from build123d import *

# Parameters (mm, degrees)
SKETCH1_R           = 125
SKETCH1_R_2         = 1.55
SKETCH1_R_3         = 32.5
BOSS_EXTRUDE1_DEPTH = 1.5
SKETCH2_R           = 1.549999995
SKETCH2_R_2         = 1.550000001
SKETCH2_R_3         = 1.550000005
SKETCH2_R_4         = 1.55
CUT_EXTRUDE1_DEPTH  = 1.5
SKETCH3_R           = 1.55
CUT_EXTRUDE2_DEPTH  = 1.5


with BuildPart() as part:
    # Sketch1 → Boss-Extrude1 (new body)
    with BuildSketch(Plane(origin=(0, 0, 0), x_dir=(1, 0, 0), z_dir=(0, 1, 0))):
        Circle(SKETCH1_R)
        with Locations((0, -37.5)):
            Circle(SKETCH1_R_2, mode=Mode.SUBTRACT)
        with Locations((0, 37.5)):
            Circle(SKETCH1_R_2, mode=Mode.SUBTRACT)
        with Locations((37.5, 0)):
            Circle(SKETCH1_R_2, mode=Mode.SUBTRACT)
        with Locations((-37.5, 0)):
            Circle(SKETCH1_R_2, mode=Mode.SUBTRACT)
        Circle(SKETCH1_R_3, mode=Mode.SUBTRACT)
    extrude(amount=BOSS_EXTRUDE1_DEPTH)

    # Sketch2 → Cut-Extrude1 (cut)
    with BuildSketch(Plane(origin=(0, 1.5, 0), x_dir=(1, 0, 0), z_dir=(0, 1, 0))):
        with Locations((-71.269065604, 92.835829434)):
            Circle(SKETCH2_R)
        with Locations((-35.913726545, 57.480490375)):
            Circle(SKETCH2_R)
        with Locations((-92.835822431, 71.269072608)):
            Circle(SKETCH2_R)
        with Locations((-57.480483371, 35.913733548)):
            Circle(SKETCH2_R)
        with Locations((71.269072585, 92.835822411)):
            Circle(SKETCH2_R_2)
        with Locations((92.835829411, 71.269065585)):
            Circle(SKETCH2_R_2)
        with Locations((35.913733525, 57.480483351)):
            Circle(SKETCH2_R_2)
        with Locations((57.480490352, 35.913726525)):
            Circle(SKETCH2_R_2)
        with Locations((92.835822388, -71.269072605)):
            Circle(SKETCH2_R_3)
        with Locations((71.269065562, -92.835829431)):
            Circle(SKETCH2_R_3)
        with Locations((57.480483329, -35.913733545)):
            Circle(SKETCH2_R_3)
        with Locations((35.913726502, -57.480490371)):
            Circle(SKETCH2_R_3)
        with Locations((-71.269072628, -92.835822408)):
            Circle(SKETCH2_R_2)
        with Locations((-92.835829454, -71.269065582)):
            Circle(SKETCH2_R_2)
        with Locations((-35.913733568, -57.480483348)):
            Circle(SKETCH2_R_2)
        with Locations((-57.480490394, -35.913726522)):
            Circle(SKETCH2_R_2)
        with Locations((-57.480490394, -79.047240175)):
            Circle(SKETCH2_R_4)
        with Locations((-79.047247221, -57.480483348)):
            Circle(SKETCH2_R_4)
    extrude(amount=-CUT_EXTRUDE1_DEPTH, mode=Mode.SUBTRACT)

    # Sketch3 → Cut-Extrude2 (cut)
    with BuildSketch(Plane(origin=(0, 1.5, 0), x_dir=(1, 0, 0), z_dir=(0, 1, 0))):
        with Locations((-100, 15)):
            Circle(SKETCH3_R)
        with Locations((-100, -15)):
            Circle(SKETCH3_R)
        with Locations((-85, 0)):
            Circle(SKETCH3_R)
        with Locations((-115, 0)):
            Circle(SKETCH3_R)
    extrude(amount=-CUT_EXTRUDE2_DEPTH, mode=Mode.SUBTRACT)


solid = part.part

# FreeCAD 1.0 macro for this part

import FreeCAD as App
import Part
import Sketcher
from FreeCAD import Vector
Q = App.Units.Quantity

doc = App.newDocument("Part")
body = doc.addObject("PartDesign::Body", "Body")

# Sketch on XZ plane
sketch1 = doc.addObject("Sketcher::SketchObject", "Sketch")
body.addObject(sketch1)
sketch1.AttachmentSupport = (doc.XZ_Plane, [""])
sketch1.MapMode = "FlatFace"
sketch1.addGeometry([
    Part.Circle(Vector(0, 0, 0), Vector(0, 0, 1), 125),  # 0
    Part.Circle(Vector(0, 37.5, 0), Vector(0, 0, 1), 1.55),  # 1
    Part.Circle(Vector(-37.5, 0, 0), Vector(0, 0, 1), 1.55),  # 2
    Part.Circle(Vector(0, 0, 0), Vector(0, 0, 1), 32.5),  # 3
    Part.Circle(Vector(37.5, 0, 0), Vector(0, 0, 1), 1.55),  # 4
    Part.Circle(Vector(0, -37.5, 0), Vector(0, 0, 1), 1.55),  # 5
], False)
sketch1.addConstraint([
    Sketcher.Constraint("Coincident", 0, 3, -1, 1),
    Sketcher.Constraint("Coincident", 3, 3, -1, 1),
    Sketcher.Constraint("Equal", 1, 2),
    Sketcher.Constraint("Equal", 2, 4),
    Sketcher.Constraint("Equal", 4, 5),
    Sketcher.Constraint("Symmetric", 2, 3, 4, 3, -1, 1),
    Sketcher.Constraint("Symmetric", 1, 3, 5, 3, -1, 1),
    Sketcher.Constraint("PointOnObject", 1, 3, -2),
    Sketcher.Constraint("PointOnObject", 2, 3, -1),
    Sketcher.Constraint("Diameter", 0, Q("250 mm")),
    Sketcher.Constraint("Diameter", 3, Q("65 mm")),
    Sketcher.Constraint("Diameter", 1, Q("3.1 mm")),
    Sketcher.Constraint("DistanceX", 2, 3, 4, 3, Q("75 mm")),
    Sketcher.Constraint("DistanceY", 5, 3, 1, 3, Q("75 mm")),
])
pad1 = doc.addObject("PartDesign::Pad", "Pad")
body.addObject(pad1)
pad1.Profile = sketch1
pad1.Length = 1.5
pad1.Reversed = True

# Sketch on XZ plane
sketch2 = doc.addObject("Sketcher::SketchObject", "Sketch001")
body.addObject(sketch2)
sketch2.AttachmentSupport = (doc.XZ_Plane, [""])
sketch2.MapMode = "FlatFace"
sketch2.AttachmentOffset = App.Placement(Vector(0, 0, -1.5), App.Rotation())
sketch2.addGeometry([
    Part.Circle(Vector(-71.269066, -92.835829, 0), Vector(0, 0, 1), 1.55),  # 0
    Part.Circle(Vector(-35.913727, -57.48049, 0), Vector(0, 0, 1), 1.55),  # 1
    Part.Circle(Vector(-92.835822, -71.269073, 0), Vector(0, 0, 1), 1.55),  # 2
    Part.Circle(Vector(-57.480483, -35.913734, 0), Vector(0, 0, 1), 1.55),  # 3
    Part.Circle(Vector(71.269073, -92.835822, 0), Vector(0, 0, 1), 1.55),  # 4
    Part.Circle(Vector(92.835829, -71.269066, 0), Vector(0, 0, 1), 1.55),  # 5
    Part.Circle(Vector(35.913734, -57.480483, 0), Vector(0, 0, 1), 1.55),  # 6
    Part.Circle(Vector(57.48049, -35.913727, 0), Vector(0, 0, 1), 1.55),  # 7
    Part.Circle(Vector(92.835822, 71.269073, 0), Vector(0, 0, 1), 1.55),  # 8
    Part.Circle(Vector(71.269066, 92.835829, 0), Vector(0, 0, 1), 1.55),  # 9
    Part.Circle(Vector(57.480483, 35.913734, 0), Vector(0, 0, 1), 1.55),  # 10
    Part.Circle(Vector(35.913727, 57.48049, 0), Vector(0, 0, 1), 1.55),  # 11
    Part.Circle(Vector(-71.269073, 92.835822, 0), Vector(0, 0, 1), 1.55),  # 12
    Part.Circle(Vector(-92.835829, 71.269066, 0), Vector(0, 0, 1), 1.55),  # 13
    Part.Circle(Vector(-35.913734, 57.480483, 0), Vector(0, 0, 1), 1.55),  # 14
    Part.Circle(Vector(-57.48049, 35.913727, 0), Vector(0, 0, 1), 1.55),  # 15
    Part.Circle(Vector(-57.48049, 79.04724, 0), Vector(0, 0, 1), 1.55),  # 16
    Part.Circle(Vector(-79.047247, 57.480483, 0), Vector(0, 0, 1), 1.55),  # 17
], False)
sketch2.addConstraint([
    Sketcher.Constraint("Equal", 0, 1),
    Sketcher.Constraint("Equal", 1, 2),
    Sketcher.Constraint("Equal", 2, 3),
    Sketcher.Constraint("Equal", 3, 4),
    Sketcher.Constraint("Equal", 4, 5),
    Sketcher.Constraint("Equal", 5, 6),
    Sketcher.Constraint("Equal", 6, 7),
    Sketcher.Constraint("Equal", 7, 8),
    Sketcher.Constraint("Equal", 8, 9),
    Sketcher.Constraint("Equal", 9, 10),
    Sketcher.Constraint("Equal", 10, 11),
    Sketcher.Constraint("Equal", 11, 12),
    Sketcher.Constraint("Equal", 12, 13),
    Sketcher.Constraint("Equal", 13, 14),
    Sketcher.Constraint("Equal", 14, 15),
    Sketcher.Constraint("Equal", 15, 16),
    Sketcher.Constraint("Equal", 16, 17),
    Sketcher.Constraint("Symmetric", 2, 3, 8, 3, -1, 1),
    Sketcher.Constraint("Symmetric", 0, 3, 9, 3, -1, 1),
    Sketcher.Constraint("Symmetric", 3, 3, 10, 3, -1, 1),
    Sketcher.Constraint("Symmetric", 1, 3, 11, 3, -1, 1),
    Sketcher.Constraint("Symmetric", 4, 3, 12, 3, -1, 1),
    Sketcher.Constraint("Symmetric", 5, 3, 13, 3, -1, 1),
    Sketcher.Constraint("Symmetric", 6, 3, 14, 3, -1, 1),
    Sketcher.Constraint("Symmetric", 7, 3, 15, 3, -1, 1),
    Sketcher.Constraint("Symmetric", 0, 3, 4, 3, -2),
    Sketcher.Constraint("Symmetric", 2, 3, 5, 3, -2),
    Sketcher.Constraint("Symmetric", 1, 3, 6, 3, -2),
    Sketcher.Constraint("Symmetric", 3, 3, 7, 3, -2),
    Sketcher.Constraint("Horizontal", 14, 3, 17, 3),
    Sketcher.Constraint("Vertical", 15, 3, 16, 3),
    Sketcher.Constraint("Diameter", 0, Q("3.1 mm")),
    Sketcher.Constraint("DistanceX", 1, 3, 4, 3, Q("107.182799 mm")),
    Sketcher.Constraint("DistanceY", 7, 3, 8, 3, Q("107.182799 mm")),
    Sketcher.Constraint("DistanceY", 0, 3, -1, 1, Q("92.835829 mm")),
    Sketcher.Constraint("DistanceY", 1, 3, -1, 1, Q("57.48049 mm")),
    Sketcher.Constraint("DistanceX", -1, 1, 5, 3, Q("92.835829 mm")),
    Sketcher.Constraint("DistanceX", -1, 1, 7, 3, Q("57.48049 mm")),
    Sketcher.Constraint("DistanceY", -1, 1, 16, 3, Q("79.04724 mm")),
    Sketcher.Constraint("DistanceX", 0, 3, 1, 3, Q("35.355339 mm")),
    Sketcher.Constraint("DistanceY", 2, 3, 3, 3, Q("35.355339 mm")),
    Sketcher.Constraint("DistanceX", 17, 3, -1, 1, Q("79.047247 mm")),
])
pocket1 = doc.addObject("PartDesign::Pocket", "Pocket")
body.addObject(pocket1)
pocket1.Profile = sketch2
pocket1.Length = 1.5
pocket1.Reversed = True

# Sketch on XZ plane
sketch3 = doc.addObject("Sketcher::SketchObject", "Sketch002")
body.addObject(sketch3)
sketch3.AttachmentSupport = (doc.XZ_Plane, [""])
sketch3.MapMode = "FlatFace"
sketch3.AttachmentOffset = App.Placement(Vector(0, 0, -1.5), App.Rotation())
sketch3.addGeometry([
    Part.Circle(Vector(-100, -15, 0), Vector(0, 0, 1), 1.55),
    Part.Circle(Vector(-100, 15, 0), Vector(0, 0, 1), 1.55),
    Part.Circle(Vector(-85, 0, 0), Vector(0, 0, 1), 1.55),
    Part.Circle(Vector(-115, 0, 0), Vector(0, 0, 1), 1.55),
], False)
sketch3.addConstraint([
    Sketcher.Constraint("Equal", 0, 1),
    Sketcher.Constraint("Equal", 1, 2),
    Sketcher.Constraint("Equal", 2, 3),
    Sketcher.Constraint("Symmetric", 0, 3, 1, 3, -1),
    Sketcher.Constraint("PointOnObject", 2, 3, -1),
    Sketcher.Constraint("PointOnObject", 3, 3, -1),
    Sketcher.Constraint("Diameter", 0, Q("3.1 mm")),
    Sketcher.Constraint("DistanceX", 0, 3, -1, 1, Q("100 mm")),
    Sketcher.Constraint("DistanceY", 0, 3, -1, 1, Q("15 mm")),
    Sketcher.Constraint("DistanceX", 2, 3, -1, 1, Q("85 mm")),
    Sketcher.Constraint("DistanceX", 3, 3, -1, 1, Q("115 mm")),
])
pocket2 = doc.addObject("PartDesign::Pocket", "Pocket001")
body.addObject(pocket2)
pocket2.Profile = sketch3
pocket2.Length = 1.5
pocket2.Reversed = True

doc.recompute()
